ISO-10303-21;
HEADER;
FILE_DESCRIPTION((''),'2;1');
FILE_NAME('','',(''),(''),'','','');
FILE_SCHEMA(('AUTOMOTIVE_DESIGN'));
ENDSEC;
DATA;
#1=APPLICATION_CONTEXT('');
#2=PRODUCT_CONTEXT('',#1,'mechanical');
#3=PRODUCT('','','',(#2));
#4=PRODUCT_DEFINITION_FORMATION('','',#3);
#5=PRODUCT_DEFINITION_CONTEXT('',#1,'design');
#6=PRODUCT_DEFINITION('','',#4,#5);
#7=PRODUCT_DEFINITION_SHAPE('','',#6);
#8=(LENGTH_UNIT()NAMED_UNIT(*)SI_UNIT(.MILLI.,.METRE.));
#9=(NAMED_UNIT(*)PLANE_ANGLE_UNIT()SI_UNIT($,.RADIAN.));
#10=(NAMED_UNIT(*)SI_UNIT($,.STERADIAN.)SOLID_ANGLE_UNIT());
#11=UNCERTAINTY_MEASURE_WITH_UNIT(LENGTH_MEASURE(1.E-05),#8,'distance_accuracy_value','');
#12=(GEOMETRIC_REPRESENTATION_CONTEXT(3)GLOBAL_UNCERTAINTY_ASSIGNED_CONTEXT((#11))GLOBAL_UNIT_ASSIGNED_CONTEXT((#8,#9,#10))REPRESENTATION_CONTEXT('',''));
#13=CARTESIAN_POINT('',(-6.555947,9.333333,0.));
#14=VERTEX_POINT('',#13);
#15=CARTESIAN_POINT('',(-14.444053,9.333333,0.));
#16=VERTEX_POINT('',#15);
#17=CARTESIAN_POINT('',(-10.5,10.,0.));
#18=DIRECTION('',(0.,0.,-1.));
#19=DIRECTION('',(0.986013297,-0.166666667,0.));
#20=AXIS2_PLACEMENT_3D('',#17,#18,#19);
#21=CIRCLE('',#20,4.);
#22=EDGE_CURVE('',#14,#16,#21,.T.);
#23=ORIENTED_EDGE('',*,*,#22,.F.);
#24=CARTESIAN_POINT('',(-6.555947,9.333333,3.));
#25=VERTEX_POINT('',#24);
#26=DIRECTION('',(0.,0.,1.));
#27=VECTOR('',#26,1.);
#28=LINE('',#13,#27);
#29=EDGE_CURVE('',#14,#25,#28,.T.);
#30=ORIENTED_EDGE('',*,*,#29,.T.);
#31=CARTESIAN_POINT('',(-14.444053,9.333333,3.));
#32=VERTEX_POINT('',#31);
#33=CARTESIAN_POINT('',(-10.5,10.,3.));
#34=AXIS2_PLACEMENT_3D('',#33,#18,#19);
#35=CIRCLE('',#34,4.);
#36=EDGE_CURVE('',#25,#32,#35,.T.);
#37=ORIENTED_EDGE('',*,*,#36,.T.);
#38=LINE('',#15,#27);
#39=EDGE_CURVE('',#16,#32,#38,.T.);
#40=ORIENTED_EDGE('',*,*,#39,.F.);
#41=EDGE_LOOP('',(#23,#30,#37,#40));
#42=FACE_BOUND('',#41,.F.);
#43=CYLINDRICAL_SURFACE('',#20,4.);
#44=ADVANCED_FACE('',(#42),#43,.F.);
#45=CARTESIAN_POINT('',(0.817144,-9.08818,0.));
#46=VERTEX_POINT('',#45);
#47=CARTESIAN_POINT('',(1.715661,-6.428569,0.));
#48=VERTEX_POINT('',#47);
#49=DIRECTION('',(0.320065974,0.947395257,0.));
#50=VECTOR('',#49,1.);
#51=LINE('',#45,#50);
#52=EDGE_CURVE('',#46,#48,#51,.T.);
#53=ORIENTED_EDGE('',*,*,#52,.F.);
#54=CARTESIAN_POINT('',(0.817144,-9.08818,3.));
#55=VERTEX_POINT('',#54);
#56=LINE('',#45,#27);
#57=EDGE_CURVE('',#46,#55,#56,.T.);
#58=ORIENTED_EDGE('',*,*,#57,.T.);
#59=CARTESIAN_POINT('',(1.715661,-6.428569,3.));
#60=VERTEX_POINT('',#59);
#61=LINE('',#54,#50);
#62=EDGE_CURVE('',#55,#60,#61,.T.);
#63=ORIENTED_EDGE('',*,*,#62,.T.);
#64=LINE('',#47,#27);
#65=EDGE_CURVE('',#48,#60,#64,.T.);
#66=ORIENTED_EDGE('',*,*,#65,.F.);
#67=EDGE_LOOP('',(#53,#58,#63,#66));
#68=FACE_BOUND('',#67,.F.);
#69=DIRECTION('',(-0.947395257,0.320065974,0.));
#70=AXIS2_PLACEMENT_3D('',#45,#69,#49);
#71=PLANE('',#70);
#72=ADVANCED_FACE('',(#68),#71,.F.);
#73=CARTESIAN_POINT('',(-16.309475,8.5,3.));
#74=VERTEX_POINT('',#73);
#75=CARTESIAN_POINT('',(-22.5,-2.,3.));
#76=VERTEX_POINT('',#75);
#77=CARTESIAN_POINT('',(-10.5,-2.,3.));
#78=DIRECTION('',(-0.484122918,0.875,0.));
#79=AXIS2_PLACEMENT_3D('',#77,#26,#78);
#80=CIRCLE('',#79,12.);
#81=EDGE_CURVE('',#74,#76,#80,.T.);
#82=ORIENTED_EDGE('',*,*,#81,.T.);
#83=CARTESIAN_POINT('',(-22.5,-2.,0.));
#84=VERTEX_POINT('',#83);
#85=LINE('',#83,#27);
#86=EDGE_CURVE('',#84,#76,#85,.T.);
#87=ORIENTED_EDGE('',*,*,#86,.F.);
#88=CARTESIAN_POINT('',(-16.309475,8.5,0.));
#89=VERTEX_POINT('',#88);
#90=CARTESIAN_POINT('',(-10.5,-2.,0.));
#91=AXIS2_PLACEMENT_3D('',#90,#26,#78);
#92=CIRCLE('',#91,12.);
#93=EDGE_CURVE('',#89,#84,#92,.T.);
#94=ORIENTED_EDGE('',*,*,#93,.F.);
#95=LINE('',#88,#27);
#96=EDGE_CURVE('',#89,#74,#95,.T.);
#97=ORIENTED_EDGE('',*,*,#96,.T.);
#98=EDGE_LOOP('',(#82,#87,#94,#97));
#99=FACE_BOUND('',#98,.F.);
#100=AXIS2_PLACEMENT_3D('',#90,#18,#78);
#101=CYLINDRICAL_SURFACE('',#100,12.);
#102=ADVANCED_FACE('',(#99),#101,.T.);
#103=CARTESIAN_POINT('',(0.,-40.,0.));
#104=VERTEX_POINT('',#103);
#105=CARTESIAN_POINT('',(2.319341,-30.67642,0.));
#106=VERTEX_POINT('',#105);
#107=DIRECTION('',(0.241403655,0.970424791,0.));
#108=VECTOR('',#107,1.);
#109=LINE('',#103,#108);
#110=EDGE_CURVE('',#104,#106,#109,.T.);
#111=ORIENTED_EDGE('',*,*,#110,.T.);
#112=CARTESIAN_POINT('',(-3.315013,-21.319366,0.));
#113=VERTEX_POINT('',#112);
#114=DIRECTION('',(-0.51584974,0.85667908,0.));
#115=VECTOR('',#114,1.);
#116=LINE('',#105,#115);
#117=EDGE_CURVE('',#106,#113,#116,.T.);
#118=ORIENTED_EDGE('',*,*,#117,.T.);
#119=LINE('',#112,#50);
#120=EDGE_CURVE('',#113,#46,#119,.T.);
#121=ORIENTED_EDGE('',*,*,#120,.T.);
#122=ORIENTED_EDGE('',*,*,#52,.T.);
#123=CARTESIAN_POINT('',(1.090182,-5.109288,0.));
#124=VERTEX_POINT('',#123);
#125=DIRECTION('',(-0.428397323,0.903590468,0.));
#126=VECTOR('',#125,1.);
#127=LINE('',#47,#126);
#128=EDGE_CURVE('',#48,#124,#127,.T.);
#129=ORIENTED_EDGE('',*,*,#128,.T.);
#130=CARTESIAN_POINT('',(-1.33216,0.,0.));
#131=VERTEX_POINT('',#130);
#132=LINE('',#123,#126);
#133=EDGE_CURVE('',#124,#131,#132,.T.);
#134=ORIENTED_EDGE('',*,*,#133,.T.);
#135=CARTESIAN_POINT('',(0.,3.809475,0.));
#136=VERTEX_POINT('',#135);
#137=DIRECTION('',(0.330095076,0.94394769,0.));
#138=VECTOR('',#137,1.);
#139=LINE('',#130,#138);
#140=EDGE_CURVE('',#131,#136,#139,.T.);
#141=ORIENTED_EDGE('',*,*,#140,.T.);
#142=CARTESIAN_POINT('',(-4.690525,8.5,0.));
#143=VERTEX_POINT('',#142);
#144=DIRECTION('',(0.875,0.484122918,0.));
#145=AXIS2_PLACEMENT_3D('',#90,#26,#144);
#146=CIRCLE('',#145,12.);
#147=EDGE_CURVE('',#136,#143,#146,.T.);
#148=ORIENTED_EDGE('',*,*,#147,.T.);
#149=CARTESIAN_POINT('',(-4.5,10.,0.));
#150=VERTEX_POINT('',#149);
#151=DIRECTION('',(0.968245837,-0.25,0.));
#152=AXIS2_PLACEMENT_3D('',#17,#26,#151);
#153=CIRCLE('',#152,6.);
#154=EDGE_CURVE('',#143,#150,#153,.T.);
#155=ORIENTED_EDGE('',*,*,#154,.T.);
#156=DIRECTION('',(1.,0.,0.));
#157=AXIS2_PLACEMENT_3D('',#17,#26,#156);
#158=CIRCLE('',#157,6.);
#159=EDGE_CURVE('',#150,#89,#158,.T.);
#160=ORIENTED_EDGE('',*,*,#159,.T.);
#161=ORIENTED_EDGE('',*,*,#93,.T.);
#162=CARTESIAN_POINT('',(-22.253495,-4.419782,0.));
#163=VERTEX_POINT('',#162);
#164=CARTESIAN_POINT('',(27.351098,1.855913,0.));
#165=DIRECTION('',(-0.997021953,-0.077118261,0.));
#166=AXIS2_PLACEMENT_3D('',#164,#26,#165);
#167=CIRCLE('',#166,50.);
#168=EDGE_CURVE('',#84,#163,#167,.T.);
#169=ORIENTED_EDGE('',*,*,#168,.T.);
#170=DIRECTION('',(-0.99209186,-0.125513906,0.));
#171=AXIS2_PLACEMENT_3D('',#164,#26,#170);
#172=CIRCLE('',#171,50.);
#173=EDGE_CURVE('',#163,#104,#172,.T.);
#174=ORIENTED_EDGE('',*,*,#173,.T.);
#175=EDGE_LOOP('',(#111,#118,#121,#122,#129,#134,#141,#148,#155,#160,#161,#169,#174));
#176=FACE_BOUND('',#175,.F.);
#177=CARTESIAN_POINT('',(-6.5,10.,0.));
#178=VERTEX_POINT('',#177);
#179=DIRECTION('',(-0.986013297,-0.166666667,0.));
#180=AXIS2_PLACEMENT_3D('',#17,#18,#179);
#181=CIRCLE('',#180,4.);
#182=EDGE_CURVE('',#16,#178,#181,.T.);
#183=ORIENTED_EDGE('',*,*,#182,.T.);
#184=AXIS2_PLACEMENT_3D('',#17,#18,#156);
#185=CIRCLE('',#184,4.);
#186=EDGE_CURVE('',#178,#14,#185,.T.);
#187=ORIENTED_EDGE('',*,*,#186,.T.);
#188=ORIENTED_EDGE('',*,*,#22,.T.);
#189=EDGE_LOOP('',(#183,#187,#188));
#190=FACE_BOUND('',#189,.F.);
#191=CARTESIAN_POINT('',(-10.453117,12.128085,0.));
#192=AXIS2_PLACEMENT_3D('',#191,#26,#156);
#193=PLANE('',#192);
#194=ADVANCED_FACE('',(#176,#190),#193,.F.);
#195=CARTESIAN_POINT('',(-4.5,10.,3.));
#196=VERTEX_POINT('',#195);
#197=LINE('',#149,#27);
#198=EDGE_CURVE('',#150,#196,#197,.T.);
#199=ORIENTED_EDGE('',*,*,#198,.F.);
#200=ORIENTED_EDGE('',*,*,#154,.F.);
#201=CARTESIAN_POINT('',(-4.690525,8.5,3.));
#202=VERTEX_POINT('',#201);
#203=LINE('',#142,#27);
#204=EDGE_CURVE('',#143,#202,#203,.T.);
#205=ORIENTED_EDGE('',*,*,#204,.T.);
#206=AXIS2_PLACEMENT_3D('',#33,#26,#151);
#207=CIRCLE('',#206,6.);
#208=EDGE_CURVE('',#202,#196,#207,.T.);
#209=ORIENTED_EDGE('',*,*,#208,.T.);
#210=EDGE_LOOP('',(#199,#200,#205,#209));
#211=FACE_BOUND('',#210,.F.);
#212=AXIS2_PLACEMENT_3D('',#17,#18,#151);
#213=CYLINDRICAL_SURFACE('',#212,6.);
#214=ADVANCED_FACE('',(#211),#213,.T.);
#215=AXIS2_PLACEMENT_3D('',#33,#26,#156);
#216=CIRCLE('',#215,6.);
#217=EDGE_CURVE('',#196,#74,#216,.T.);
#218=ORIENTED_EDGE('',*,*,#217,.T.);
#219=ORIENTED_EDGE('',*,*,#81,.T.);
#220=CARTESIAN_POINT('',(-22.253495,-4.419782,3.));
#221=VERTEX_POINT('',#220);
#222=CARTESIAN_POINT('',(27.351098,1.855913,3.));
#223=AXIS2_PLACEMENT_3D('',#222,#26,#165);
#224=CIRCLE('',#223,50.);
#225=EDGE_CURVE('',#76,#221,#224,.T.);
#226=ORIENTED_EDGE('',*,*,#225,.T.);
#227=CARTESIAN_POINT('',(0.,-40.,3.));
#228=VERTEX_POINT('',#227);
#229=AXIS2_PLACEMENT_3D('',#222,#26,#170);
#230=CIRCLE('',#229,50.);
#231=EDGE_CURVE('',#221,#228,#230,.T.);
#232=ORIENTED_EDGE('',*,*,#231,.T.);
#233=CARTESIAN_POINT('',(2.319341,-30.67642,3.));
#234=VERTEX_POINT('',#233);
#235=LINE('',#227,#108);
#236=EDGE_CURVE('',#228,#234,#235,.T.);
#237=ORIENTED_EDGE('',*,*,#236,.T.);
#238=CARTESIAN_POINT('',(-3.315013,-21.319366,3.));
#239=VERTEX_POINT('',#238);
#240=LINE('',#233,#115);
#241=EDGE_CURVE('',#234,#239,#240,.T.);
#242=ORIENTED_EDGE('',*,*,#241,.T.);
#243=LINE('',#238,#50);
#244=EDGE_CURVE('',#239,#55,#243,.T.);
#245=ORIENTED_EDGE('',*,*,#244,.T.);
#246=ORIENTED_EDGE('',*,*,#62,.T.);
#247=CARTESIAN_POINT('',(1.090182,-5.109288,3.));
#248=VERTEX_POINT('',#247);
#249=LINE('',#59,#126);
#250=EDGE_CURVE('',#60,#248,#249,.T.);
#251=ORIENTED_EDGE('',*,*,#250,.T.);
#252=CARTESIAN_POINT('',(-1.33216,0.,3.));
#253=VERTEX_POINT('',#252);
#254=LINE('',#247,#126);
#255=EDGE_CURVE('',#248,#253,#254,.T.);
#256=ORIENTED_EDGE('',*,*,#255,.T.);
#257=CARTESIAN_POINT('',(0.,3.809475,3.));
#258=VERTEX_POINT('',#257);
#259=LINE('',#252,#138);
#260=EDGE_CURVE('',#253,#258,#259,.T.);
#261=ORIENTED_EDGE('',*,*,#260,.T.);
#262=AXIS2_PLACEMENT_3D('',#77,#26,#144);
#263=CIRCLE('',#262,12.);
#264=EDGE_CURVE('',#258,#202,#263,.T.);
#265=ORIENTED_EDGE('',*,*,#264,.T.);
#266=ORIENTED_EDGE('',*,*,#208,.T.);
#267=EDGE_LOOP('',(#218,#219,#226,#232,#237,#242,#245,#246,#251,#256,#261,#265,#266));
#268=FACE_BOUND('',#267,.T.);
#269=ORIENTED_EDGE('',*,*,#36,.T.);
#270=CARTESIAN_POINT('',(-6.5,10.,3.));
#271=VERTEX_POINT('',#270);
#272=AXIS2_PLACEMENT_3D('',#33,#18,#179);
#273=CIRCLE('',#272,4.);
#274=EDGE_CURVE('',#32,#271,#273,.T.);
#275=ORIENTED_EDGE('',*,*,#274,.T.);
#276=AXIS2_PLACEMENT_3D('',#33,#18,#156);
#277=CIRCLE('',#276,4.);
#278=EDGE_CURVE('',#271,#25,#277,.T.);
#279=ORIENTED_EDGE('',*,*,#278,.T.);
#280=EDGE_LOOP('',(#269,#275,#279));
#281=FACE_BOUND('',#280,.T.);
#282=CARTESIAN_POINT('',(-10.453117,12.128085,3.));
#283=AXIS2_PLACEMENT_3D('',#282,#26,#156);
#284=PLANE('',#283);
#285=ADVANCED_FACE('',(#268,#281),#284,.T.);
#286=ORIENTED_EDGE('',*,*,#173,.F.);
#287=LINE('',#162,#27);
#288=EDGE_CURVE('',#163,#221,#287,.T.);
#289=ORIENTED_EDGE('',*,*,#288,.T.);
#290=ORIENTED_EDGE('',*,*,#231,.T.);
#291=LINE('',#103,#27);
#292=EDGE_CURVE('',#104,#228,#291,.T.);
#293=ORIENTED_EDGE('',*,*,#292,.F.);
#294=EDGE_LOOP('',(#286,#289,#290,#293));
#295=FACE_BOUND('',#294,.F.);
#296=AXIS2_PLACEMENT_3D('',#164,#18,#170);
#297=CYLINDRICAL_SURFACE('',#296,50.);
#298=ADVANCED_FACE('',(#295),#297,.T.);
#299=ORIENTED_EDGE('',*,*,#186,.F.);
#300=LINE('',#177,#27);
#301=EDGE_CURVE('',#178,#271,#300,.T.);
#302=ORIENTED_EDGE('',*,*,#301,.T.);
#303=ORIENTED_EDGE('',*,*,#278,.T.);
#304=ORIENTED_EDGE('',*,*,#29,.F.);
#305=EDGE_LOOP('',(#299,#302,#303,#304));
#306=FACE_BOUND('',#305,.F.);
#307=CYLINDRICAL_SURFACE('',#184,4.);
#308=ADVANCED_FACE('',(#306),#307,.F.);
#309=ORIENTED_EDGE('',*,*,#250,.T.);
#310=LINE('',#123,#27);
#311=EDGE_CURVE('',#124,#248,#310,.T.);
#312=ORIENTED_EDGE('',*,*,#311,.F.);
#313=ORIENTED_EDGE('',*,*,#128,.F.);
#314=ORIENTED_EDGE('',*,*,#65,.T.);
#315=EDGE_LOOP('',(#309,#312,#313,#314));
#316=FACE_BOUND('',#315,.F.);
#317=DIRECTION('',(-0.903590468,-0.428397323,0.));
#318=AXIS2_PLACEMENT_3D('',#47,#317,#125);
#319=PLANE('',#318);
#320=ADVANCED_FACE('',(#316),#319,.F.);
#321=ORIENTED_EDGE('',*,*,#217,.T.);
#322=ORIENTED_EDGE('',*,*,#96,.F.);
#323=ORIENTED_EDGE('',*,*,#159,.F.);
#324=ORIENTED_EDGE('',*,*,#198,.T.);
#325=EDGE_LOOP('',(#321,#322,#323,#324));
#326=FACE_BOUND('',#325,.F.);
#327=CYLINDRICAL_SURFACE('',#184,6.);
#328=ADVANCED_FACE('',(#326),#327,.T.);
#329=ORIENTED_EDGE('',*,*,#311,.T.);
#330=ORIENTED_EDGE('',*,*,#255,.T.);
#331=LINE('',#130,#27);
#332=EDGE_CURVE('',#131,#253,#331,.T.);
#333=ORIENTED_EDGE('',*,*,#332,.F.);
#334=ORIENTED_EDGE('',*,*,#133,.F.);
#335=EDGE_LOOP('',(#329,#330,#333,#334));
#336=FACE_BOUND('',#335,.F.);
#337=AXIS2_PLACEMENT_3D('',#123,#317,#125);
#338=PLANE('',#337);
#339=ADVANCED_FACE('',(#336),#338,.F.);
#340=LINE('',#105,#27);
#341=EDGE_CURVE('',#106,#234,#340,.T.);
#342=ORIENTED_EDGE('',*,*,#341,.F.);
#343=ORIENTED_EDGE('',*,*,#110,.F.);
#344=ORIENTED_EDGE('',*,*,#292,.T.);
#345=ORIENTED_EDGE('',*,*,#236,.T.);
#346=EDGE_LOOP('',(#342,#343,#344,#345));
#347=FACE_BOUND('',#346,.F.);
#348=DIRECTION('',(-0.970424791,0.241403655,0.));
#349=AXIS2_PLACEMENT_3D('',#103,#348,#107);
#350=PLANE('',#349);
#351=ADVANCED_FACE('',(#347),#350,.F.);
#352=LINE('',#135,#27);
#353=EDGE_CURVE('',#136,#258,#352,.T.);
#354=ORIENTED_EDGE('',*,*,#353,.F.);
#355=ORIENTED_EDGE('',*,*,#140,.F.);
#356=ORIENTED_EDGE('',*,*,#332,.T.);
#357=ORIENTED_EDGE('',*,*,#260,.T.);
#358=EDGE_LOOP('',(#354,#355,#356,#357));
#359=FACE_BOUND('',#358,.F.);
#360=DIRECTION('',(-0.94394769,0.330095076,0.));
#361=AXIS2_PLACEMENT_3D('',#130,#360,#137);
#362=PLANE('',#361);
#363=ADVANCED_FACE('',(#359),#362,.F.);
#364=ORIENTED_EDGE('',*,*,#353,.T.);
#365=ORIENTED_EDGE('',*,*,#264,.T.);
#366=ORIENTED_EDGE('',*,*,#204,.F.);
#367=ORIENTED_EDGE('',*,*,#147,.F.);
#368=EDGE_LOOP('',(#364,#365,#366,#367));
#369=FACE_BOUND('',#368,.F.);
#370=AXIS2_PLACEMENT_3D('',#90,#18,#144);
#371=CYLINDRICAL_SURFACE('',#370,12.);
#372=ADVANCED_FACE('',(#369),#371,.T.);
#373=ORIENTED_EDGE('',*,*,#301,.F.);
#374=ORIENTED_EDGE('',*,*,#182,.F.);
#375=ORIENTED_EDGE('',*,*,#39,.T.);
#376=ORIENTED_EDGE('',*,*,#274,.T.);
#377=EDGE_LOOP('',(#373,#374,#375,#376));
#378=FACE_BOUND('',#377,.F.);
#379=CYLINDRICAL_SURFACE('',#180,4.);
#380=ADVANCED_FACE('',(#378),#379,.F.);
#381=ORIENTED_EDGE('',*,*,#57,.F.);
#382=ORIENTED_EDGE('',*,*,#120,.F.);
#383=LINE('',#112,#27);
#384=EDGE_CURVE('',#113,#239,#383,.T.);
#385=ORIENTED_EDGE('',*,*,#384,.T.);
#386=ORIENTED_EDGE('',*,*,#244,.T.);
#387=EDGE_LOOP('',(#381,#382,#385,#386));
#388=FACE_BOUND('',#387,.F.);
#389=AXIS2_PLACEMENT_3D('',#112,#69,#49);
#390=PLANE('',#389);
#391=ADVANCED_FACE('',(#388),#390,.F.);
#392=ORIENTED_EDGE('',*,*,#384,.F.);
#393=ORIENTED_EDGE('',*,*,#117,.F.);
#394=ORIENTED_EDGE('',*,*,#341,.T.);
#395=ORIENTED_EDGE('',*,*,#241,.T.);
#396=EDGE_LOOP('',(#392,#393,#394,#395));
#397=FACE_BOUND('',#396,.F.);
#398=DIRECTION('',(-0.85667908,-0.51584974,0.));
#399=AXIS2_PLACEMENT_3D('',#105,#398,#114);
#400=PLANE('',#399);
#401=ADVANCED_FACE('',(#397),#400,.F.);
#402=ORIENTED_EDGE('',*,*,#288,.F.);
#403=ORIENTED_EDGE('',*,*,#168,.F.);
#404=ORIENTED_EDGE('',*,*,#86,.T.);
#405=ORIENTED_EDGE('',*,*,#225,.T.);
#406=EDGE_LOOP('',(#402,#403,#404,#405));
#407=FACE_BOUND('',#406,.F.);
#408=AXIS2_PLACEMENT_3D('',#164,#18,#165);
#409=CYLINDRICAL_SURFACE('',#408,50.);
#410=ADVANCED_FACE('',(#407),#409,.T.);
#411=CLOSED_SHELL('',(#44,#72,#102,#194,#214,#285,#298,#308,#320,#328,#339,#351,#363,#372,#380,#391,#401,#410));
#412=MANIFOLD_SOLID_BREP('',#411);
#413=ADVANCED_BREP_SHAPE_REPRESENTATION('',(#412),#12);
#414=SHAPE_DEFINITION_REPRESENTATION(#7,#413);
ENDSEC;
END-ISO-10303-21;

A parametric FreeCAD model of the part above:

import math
import FreeCAD as App
import Part
import Sketcher
from FreeCAD import Vector
Q = App.Units.Quantity

doc = App.newDocument("Part")
body = doc.addObject("PartDesign::Body", "Body")

sketch1 = body.newObject("Sketcher::SketchObject", "Sketch")
sketch1.AttachmentSupport = (doc.getObject("XY_Plane"), [""])
sketch1.MapMode = "FlatFace"
sketch1.addGeometry(Part.ArcOfCircle(Part.Circle(Vector(-10.5, 10, 0), Vector(0, 0, 1), 6), math.radians(-14.48), math.radians(0)), False)
sketch1.addGeometry(Part.ArcOfCircle(Part.Circle(Vector(-10.5, 10, 0), Vector(0, 0, 1), 6), math.radians(0), math.radians(194)), False)
sketch1.addGeometry(Part.ArcOfCircle(Part.Circle(Vector(-10.5, -2, 0), Vector(0, 0, 1), 12), math.radians(119), math.radians(180)), False)
sketch1.addGeometry(Part.ArcOfCircle(Part.Circle(Vector(27.4, 1.9, 0), Vector(0, 0, 1), 50), math.radians(-175.58), math.radians(-172.79)), False)
sketch1.addGeometry(Part.ArcOfCircle(Part.Circle(Vector(27.4, 1.9, 0), Vector(0, 0, 1), 50), math.radians(-173), math.radians(-123)), False)
sketch1.addGeometry(Part.LineSegment(Vector(0, -40, 0), Vector(2.3, -30.7, 0)), False)
sketch1.addGeometry(Part.LineSegment(Vector(2.3, -30.7, 0), Vector(-3.3, -21.3, 0)), False)
sketch1.addGeometry(Part.LineSegment(Vector(-3.3, -21.3, 0), Vector(0.8, -9.1, 0)), False)
sketch1.addGeometry(Part.LineSegment(Vector(0.8, -9.1, 0), Vector(1.7, -6.4, 0)), False)
sketch1.addGeometry(Part.LineSegment(Vector(1.7, -6.4, 0), Vector(1.1, -5.1, 0)), False)
sketch1.addGeometry(Part.LineSegment(Vector(1.1, -5.1, 0), Vector(-1.3, 0, 0)), False)
sketch1.addGeometry(Part.LineSegment(Vector(-1.3, 0, 0), Vector(0, 3.8, 0)), False)
sketch1.addGeometry(Part.ArcOfCircle(Part.Circle(Vector(-10.5, -2, 0), Vector(0, 0, 1), 12), math.radians(29), math.radians(61)), False)
sketch1.addGeometry(Part.ArcOfCircle(Part.Circle(Vector(-10.5, 10, 0), Vector(0, 0, 1), 4), math.radians(0), math.radians(190)), False)
sketch1.addGeometry(Part.ArcOfCircle(Part.Circle(Vector(-10.5, 10, 0), Vector(0, 0, 1), 4), math.radians(-9.59), math.radians(0)), False)
sketch1.addGeometry(Part.ArcOfCircle(Part.Circle(Vector(-10.5, 10, 0), Vector(0, 0, 1), 4), math.radians(-170), math.radians(-10)), False)
sketch1.addConstraint(Sketcher.Constraint("Tangent", 0, 2, 1, 1))
sketch1.addConstraint(Sketcher.Constraint("Coincident", 1, 2, 2, 1))
sketch1.addConstraint(Sketcher.Constraint("Coincident", 2, 2, 3, 1))
sketch1.addConstraint(Sketcher.Constraint("Tangent", 3, 2, 4, 1))
sketch1.addConstraint(Sketcher.Constraint("Coincident", 4, 2, 5, 1))
sketch1.addConstraint(Sketcher.Constraint("Coincident", 5, 2, 6, 1))
sketch1.addConstraint(Sketcher.Constraint("Coincident", 6, 2, 7, 1))
sketch1.addConstraint(Sketcher.Constraint("Coincident", 7, 2, 8, 1))
sketch1.addConstraint(Sketcher.Constraint("Coincident", 8, 2, 9, 1))
sketch1.addConstraint(Sketcher.Constraint("Coincident", 9, 2, 10, 1))
sketch1.addConstraint(Sketcher.Constraint("Coincident", 10, 2, 11, 1))
sketch1.addConstraint(Sketcher.Constraint("Coincident", 11, 2, 12, 1))
sketch1.addConstraint(Sketcher.Constraint("Coincident", 12, 2, 0, 1))
sketch1.addConstraint(Sketcher.Constraint("Tangent", 13, 1, 14, 2))
sketch1.addConstraint(Sketcher.Constraint("Tangent", 14, 1, 15, 2))
sketch1.addConstraint(Sketcher.Constraint("Tangent", 15, 1, 13, 2))
sketch1.addConstraint(Sketcher.Constraint("Coincident", 12, 3, 2, 3))
sketch1.addConstraint(Sketcher.Constraint("Coincident", 13, 3, 0, 3))
sketch1.addConstraint(Sketcher.Constraint("Equal", 0, 1))
sketch1.addConstraint(Sketcher.Constraint("Equal", 3, 4))
sketch1.addConstraint(Sketcher.Constraint("Equal", 2, 12))
sketch1.addConstraint(Sketcher.Constraint("PointOnObject", 4, 2, -2))
sketch1.addConstraint(Sketcher.Constraint("PointOnObject", 10, 2, -1))
sketch1.addConstraint(Sketcher.Constraint("PointOnObject", 11, 2, -2))
sketch1.addConstraint(Sketcher.Constraint("Parallel", 7, 8))
sketch1.addConstraint(Sketcher.Constraint("Parallel", 9, 10))
sketch1.addConstraint(Sketcher.Constraint("Horizontal", 15, 3, 0, 2))
sketch1.addConstraint(Sketcher.Constraint("Horizontal", 12, 3, 2, 2))
sketch1.addConstraint(Sketcher.Constraint("Horizontal", 1, 2, 12, 2))
sketch1.addConstraint(Sketcher.Constraint("Horizontal", 0, 2, 13, 1))
sketch1.addConstraint(Sketcher.Constraint("Horizontal", 14, 1, 15, 1))
sketch1.addConstraint(Sketcher.Constraint("Radius", 0, Q("6 mm")))
sketch1.addConstraint(Sketcher.Constraint("Radius", 2, Q("12 mm")))
sketch1.addConstraint(Sketcher.Constraint("Radius", 3, Q("50 mm")))
sketch1.addConstraint(Sketcher.Constraint("Radius", 13, Q("4 mm")))
sketch1.addConstraint(Sketcher.Constraint("DistanceY", -1, 1, 0, 3, Q("10 mm")))
sketch1.addConstraint(Sketcher.Constraint("DistanceY", 2, 3, -1, 1, Q("2 mm")))
sketch1.addConstraint(Sketcher.Constraint("DistanceY", 4, 2, -1, 1, Q("40 mm")))
sketch1.addConstraint(Sketcher.Constraint("DistanceX", 0, 3, -1, 1, Q("10.5 mm")))
sketch1.addConstraint(Sketcher.Constraint("Distance", 5, Q("9.607731 mm")))
sketch1.addConstraint(Sketcher.Constraint("Distance", 7, Q("12.91033 mm")))
sketch1.addConstraint(Sketcher.Constraint("Distance", 10, Q("5.654429 mm")))
sketch1.addConstraint(Sketcher.Constraint("DistanceX", -1, 1, 5, 2, Q("2.319341 mm")))
sketch1.addConstraint(Sketcher.Constraint("DistanceY", 7, 2, -1, 1, Q("9.08818 mm")))
sketch1.addConstraint(Sketcher.Constraint("DistanceX", -1, 1, 8, 2, Q("1.715661 mm")))
sketch1.addConstraint(Sketcher.Constraint("DistanceY", 8, 2, -1, 1, Q("6.428569 mm")))
sketch1.addConstraint(Sketcher.Constraint("DistanceX", 10, 2, -1, 1, Q("1.33216 mm")))
sketch1.addConstraint(Sketcher.Constraint("DistanceX", 3, 2, 1, 2, Q("5.94402 mm")))
sketch1.addConstraint(Sketcher.Constraint("DistanceX", 7, 2, 9, 2, Q("0.273038 mm")))
sketch1.addConstraint(Sketcher.Constraint("DistanceX", 14, 1, 12, 2, Q("1.865422 mm")))
pad1 = body.newObject("PartDesign::Pad", "Pad")
pad1.Profile = sketch1
pad1.Length = 3

doc.recompute()
